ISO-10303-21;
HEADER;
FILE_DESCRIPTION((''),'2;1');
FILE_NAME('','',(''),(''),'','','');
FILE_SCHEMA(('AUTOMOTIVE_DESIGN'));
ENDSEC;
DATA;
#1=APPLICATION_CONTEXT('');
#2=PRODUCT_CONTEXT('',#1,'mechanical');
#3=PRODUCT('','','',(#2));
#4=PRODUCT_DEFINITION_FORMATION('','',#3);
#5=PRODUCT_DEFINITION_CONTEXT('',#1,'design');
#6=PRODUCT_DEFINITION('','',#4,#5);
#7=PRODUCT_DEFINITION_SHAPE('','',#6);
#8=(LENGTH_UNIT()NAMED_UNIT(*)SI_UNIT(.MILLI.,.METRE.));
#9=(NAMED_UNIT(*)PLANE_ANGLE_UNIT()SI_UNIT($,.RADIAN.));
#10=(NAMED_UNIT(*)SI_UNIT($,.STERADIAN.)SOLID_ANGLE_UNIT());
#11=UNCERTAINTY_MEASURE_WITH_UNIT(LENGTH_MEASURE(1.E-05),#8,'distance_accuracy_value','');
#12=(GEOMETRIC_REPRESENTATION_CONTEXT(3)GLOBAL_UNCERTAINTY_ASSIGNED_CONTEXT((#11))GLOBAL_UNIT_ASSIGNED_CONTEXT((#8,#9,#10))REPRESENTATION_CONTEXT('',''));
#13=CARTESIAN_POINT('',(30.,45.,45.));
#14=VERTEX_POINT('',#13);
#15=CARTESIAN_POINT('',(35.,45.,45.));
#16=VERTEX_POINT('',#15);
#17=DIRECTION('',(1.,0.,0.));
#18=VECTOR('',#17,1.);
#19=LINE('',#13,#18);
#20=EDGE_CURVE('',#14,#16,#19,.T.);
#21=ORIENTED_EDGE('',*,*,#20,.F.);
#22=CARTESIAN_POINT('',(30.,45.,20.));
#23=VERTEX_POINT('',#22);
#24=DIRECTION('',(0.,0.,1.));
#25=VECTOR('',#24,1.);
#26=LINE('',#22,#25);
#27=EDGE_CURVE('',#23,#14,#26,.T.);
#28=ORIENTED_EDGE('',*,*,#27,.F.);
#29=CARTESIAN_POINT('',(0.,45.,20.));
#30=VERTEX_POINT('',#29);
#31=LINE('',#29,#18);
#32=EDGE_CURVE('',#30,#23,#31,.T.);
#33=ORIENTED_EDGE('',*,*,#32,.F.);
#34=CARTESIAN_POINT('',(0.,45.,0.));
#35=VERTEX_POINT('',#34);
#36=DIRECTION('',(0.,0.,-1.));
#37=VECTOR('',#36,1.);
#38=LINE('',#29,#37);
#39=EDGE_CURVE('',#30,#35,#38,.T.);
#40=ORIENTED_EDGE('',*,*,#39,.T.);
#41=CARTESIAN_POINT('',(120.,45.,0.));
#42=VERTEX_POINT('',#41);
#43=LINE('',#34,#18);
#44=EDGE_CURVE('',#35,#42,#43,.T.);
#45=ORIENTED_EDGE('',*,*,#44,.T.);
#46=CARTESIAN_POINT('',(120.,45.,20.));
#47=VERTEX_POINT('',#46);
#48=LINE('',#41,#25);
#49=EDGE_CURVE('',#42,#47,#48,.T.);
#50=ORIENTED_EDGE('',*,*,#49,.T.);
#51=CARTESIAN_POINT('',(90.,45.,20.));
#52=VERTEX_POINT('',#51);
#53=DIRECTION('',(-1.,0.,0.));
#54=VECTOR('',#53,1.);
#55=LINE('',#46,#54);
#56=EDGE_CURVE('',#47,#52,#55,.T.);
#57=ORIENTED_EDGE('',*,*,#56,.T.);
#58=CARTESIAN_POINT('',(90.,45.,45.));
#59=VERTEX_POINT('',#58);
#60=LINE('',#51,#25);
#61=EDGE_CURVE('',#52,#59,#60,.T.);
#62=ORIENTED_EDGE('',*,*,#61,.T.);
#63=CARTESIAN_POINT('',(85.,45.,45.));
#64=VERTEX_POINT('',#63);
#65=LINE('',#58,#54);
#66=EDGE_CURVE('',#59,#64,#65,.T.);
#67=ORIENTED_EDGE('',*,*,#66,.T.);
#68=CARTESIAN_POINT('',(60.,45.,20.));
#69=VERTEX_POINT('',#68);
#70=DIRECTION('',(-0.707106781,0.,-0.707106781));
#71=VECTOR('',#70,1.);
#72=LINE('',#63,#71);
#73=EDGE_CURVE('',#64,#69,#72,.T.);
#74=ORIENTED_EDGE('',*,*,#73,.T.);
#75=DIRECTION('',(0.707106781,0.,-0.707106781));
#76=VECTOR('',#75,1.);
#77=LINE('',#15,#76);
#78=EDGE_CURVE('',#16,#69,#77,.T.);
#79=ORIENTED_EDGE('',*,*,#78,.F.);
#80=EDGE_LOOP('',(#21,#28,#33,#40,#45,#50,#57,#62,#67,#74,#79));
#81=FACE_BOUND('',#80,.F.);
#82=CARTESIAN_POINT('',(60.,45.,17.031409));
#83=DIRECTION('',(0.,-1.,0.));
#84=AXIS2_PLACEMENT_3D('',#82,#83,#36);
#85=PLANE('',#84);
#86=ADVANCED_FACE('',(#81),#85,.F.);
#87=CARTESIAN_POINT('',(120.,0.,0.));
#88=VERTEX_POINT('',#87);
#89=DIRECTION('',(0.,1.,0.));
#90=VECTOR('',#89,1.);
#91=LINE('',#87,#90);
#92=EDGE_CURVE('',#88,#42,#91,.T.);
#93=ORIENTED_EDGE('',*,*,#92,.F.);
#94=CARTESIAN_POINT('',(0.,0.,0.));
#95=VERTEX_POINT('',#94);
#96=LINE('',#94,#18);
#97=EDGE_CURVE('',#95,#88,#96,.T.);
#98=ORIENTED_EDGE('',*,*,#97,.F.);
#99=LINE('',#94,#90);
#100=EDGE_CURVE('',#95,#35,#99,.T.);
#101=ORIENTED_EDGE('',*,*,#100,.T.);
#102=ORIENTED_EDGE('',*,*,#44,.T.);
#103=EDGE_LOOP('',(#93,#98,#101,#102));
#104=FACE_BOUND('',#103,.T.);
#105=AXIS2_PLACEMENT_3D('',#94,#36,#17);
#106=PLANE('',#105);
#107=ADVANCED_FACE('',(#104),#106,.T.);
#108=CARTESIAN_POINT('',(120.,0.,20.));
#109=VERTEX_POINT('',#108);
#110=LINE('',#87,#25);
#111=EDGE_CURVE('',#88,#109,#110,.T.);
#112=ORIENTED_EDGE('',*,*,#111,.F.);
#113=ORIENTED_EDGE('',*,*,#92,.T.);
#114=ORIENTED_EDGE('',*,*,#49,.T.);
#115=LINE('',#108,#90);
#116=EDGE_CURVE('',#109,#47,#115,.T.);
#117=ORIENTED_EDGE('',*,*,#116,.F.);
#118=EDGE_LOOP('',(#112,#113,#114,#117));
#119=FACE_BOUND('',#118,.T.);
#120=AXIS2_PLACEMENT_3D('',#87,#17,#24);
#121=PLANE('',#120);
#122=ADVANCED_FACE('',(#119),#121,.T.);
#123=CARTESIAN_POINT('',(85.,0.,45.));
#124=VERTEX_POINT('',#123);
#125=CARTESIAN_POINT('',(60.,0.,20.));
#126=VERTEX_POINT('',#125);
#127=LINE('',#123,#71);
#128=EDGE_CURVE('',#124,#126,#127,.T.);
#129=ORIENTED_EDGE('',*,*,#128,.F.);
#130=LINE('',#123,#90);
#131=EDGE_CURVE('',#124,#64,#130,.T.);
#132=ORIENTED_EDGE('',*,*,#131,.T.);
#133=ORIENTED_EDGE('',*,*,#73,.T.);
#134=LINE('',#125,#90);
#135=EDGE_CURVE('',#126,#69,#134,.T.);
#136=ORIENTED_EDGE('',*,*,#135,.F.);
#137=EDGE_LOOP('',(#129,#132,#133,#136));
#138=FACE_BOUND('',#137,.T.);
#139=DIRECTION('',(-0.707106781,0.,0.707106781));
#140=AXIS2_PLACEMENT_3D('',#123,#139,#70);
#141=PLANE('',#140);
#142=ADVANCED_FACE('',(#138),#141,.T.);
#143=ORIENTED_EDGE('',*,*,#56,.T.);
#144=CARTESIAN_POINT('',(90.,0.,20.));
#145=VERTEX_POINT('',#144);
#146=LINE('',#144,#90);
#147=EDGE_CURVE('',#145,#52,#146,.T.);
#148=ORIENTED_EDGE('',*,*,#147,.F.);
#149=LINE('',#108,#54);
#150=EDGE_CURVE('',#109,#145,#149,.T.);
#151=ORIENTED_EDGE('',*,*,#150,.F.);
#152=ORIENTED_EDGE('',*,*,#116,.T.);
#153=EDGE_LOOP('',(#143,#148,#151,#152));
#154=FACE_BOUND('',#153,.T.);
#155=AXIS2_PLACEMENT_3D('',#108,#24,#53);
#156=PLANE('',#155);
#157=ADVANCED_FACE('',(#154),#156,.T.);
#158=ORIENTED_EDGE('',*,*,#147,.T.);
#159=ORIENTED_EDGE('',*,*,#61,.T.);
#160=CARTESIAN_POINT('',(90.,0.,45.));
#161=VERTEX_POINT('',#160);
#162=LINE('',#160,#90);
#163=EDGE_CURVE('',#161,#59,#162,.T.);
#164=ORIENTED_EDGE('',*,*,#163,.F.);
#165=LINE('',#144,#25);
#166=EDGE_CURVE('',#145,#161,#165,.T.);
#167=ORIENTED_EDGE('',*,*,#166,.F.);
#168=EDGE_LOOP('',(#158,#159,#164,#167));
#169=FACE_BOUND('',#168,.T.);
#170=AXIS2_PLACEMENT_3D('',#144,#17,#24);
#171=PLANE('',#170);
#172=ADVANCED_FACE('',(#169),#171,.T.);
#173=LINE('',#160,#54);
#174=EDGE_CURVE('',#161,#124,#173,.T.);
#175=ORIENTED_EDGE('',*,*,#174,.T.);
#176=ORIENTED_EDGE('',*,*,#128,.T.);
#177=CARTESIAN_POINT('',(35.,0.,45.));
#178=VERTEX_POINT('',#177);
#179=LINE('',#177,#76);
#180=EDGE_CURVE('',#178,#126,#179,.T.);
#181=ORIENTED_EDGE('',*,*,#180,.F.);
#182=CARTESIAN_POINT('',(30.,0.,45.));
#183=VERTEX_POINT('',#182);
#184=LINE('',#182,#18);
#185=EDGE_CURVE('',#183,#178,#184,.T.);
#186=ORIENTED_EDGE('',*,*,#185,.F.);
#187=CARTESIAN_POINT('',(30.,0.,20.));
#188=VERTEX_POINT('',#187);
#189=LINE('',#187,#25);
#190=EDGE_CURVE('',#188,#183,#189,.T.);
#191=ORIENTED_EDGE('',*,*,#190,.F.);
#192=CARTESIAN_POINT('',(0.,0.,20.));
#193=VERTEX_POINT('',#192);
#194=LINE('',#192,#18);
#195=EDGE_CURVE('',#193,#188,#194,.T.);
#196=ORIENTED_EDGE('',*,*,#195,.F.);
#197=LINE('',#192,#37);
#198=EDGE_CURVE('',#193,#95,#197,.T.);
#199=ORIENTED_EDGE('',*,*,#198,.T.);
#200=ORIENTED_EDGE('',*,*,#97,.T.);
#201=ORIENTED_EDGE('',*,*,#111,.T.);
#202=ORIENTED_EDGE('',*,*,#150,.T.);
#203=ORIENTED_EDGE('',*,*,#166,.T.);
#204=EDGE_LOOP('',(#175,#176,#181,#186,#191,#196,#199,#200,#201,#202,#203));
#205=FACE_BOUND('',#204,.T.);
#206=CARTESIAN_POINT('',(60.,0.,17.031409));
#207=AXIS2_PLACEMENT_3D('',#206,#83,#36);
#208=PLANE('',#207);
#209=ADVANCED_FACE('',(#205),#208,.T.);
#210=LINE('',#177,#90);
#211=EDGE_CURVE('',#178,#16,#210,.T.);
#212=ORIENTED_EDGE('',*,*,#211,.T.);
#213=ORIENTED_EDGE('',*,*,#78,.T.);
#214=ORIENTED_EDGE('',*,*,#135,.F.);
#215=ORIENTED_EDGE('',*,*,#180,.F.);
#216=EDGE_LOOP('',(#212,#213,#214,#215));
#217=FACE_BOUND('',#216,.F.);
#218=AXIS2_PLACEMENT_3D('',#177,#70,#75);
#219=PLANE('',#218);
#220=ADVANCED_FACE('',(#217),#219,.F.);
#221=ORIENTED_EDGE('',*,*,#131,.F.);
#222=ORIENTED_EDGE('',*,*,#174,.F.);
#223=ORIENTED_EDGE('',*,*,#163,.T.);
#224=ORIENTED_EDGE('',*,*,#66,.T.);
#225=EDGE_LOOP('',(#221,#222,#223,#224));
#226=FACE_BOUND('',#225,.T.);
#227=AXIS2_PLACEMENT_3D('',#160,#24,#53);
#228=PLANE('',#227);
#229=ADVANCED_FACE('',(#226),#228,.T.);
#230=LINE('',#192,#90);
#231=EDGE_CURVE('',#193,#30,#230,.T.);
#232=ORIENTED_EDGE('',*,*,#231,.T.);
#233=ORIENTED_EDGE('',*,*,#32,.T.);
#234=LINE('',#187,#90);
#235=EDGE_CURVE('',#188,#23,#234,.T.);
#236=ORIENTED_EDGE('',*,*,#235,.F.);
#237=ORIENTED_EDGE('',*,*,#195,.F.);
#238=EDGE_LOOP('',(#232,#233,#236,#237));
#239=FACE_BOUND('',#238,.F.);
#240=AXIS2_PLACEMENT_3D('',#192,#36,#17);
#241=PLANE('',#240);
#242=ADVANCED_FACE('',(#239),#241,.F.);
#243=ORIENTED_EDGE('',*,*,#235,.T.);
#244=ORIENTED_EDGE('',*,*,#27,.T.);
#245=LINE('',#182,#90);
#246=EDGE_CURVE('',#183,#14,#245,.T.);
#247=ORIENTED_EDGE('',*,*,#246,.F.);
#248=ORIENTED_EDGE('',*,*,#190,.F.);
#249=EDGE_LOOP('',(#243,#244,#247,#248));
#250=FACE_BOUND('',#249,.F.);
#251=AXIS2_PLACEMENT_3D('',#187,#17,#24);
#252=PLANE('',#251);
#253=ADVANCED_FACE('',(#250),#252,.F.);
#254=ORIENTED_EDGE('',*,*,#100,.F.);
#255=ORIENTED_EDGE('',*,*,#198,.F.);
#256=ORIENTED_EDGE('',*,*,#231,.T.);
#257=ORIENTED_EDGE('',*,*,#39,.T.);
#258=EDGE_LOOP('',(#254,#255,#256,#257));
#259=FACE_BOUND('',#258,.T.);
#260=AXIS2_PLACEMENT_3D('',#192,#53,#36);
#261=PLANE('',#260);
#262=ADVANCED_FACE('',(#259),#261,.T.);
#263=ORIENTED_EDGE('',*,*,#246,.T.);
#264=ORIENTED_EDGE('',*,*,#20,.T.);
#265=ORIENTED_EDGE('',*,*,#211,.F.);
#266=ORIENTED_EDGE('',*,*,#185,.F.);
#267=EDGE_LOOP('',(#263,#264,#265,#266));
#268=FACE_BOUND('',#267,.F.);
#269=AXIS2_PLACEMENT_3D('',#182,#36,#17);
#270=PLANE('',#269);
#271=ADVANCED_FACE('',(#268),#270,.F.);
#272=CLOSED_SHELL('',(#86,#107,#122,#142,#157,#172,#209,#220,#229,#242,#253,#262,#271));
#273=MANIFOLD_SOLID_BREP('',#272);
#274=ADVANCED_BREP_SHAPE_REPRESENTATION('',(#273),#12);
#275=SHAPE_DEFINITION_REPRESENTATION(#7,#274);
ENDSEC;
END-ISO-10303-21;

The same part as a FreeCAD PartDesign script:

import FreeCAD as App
import Part
import Sketcher
from FreeCAD import Vector
Q = App.Units.Quantity


def add_polygon(sketch, points):
    """Adds a closed chain of lines whose ends are joined by coincident constraints."""
    first, n = sketch.GeometryCount, len(points)
    for a, b in zip(points, points[1:] + points[:1]):
        sketch.addGeometry(Part.LineSegment(App.Vector(*a, 0), App.Vector(*b, 0)), False)
    for i in range(n):
        sketch.addConstraint(Sketcher.Constraint("Coincident", first + i, 2, first + (i + 1) % n, 1))

doc = App.newDocument("Part")
body = doc.addObject("PartDesign::Body", "Body")

sketch1 = body.newObject("Sketcher::SketchObject", "Sketch")
sketch1.AttachmentSupport = (doc.getObject("XZ_Plane"), [""])
sketch1.MapMode = "FlatFace"
add_polygon(sketch1, [(0, 20), (0, 0), (120, 0), (120, 20), (90, 20), (90, 45), (85, 45), (60, 20), (35, 45), (30, 45), (30, 20)])
sketch1.addConstraint(Sketcher.Constraint("Vertical", 0))
sketch1.addConstraint(Sketcher.Constraint("Horizontal", 1))
sketch1.addConstraint(Sketcher.Constraint("Vertical", 2))
sketch1.addConstraint(Sketcher.Constraint("Horizontal", 3))
sketch1.addConstraint(Sketcher.Constraint("Vertical", 4))
sketch1.addConstraint(Sketcher.Constraint("Horizontal", 5))
sketch1.addConstraint(Sketcher.Constraint("Horizontal", 8))
sketch1.addConstraint(Sketcher.Constraint("Vertical", 9))
sketch1.addConstraint(Sketcher.Constraint("Horizontal", 10))
sketch1.addConstraint(Sketcher.Constraint("Coincident", 0, 2, -1, 1))
sketch1.addConstraint(Sketcher.Constraint("Perpendicular", 6, 7))
sketch1.addConstraint(Sketcher.Constraint("Horizontal", 3, 2, 6, 2))
sketch1.addConstraint(Sketcher.Constraint("Horizontal", 5, 2, 7, 2))
sketch1.addConstraint(Sketcher.Constraint("Horizontal", 6, 2, 9, 2))
sketch1.addConstraint(Sketcher.Constraint("Equal", 5, 8))
sketch1.addConstraint(Sketcher.Constraint("Equal", 3, 10))
sketch1.addConstraint(Sketcher.Constraint("Equal", 6, 7))
sketch1.addConstraint(Sketcher.Constraint("DistanceX", 1, 1, 1, 2, Q("120 mm")))
sketch1.addConstraint(Sketcher.Constraint("DistanceX", 3, 2, 3, 1, Q("30 mm")))
sketch1.addConstraint(Sketcher.Constraint("DistanceX", 5, 2, 5, 1, Q("5 mm")))
sketch1.addConstraint(Sketcher.Constraint("DistanceY", 0, 2, 0, 1, Q("20 mm")))
pad1 = body.newObject("PartDesign::Pad", "Pad")
pad1.Profile = sketch1
pad1.Length = 45
pad1.Reversed = True

doc.recompute()
